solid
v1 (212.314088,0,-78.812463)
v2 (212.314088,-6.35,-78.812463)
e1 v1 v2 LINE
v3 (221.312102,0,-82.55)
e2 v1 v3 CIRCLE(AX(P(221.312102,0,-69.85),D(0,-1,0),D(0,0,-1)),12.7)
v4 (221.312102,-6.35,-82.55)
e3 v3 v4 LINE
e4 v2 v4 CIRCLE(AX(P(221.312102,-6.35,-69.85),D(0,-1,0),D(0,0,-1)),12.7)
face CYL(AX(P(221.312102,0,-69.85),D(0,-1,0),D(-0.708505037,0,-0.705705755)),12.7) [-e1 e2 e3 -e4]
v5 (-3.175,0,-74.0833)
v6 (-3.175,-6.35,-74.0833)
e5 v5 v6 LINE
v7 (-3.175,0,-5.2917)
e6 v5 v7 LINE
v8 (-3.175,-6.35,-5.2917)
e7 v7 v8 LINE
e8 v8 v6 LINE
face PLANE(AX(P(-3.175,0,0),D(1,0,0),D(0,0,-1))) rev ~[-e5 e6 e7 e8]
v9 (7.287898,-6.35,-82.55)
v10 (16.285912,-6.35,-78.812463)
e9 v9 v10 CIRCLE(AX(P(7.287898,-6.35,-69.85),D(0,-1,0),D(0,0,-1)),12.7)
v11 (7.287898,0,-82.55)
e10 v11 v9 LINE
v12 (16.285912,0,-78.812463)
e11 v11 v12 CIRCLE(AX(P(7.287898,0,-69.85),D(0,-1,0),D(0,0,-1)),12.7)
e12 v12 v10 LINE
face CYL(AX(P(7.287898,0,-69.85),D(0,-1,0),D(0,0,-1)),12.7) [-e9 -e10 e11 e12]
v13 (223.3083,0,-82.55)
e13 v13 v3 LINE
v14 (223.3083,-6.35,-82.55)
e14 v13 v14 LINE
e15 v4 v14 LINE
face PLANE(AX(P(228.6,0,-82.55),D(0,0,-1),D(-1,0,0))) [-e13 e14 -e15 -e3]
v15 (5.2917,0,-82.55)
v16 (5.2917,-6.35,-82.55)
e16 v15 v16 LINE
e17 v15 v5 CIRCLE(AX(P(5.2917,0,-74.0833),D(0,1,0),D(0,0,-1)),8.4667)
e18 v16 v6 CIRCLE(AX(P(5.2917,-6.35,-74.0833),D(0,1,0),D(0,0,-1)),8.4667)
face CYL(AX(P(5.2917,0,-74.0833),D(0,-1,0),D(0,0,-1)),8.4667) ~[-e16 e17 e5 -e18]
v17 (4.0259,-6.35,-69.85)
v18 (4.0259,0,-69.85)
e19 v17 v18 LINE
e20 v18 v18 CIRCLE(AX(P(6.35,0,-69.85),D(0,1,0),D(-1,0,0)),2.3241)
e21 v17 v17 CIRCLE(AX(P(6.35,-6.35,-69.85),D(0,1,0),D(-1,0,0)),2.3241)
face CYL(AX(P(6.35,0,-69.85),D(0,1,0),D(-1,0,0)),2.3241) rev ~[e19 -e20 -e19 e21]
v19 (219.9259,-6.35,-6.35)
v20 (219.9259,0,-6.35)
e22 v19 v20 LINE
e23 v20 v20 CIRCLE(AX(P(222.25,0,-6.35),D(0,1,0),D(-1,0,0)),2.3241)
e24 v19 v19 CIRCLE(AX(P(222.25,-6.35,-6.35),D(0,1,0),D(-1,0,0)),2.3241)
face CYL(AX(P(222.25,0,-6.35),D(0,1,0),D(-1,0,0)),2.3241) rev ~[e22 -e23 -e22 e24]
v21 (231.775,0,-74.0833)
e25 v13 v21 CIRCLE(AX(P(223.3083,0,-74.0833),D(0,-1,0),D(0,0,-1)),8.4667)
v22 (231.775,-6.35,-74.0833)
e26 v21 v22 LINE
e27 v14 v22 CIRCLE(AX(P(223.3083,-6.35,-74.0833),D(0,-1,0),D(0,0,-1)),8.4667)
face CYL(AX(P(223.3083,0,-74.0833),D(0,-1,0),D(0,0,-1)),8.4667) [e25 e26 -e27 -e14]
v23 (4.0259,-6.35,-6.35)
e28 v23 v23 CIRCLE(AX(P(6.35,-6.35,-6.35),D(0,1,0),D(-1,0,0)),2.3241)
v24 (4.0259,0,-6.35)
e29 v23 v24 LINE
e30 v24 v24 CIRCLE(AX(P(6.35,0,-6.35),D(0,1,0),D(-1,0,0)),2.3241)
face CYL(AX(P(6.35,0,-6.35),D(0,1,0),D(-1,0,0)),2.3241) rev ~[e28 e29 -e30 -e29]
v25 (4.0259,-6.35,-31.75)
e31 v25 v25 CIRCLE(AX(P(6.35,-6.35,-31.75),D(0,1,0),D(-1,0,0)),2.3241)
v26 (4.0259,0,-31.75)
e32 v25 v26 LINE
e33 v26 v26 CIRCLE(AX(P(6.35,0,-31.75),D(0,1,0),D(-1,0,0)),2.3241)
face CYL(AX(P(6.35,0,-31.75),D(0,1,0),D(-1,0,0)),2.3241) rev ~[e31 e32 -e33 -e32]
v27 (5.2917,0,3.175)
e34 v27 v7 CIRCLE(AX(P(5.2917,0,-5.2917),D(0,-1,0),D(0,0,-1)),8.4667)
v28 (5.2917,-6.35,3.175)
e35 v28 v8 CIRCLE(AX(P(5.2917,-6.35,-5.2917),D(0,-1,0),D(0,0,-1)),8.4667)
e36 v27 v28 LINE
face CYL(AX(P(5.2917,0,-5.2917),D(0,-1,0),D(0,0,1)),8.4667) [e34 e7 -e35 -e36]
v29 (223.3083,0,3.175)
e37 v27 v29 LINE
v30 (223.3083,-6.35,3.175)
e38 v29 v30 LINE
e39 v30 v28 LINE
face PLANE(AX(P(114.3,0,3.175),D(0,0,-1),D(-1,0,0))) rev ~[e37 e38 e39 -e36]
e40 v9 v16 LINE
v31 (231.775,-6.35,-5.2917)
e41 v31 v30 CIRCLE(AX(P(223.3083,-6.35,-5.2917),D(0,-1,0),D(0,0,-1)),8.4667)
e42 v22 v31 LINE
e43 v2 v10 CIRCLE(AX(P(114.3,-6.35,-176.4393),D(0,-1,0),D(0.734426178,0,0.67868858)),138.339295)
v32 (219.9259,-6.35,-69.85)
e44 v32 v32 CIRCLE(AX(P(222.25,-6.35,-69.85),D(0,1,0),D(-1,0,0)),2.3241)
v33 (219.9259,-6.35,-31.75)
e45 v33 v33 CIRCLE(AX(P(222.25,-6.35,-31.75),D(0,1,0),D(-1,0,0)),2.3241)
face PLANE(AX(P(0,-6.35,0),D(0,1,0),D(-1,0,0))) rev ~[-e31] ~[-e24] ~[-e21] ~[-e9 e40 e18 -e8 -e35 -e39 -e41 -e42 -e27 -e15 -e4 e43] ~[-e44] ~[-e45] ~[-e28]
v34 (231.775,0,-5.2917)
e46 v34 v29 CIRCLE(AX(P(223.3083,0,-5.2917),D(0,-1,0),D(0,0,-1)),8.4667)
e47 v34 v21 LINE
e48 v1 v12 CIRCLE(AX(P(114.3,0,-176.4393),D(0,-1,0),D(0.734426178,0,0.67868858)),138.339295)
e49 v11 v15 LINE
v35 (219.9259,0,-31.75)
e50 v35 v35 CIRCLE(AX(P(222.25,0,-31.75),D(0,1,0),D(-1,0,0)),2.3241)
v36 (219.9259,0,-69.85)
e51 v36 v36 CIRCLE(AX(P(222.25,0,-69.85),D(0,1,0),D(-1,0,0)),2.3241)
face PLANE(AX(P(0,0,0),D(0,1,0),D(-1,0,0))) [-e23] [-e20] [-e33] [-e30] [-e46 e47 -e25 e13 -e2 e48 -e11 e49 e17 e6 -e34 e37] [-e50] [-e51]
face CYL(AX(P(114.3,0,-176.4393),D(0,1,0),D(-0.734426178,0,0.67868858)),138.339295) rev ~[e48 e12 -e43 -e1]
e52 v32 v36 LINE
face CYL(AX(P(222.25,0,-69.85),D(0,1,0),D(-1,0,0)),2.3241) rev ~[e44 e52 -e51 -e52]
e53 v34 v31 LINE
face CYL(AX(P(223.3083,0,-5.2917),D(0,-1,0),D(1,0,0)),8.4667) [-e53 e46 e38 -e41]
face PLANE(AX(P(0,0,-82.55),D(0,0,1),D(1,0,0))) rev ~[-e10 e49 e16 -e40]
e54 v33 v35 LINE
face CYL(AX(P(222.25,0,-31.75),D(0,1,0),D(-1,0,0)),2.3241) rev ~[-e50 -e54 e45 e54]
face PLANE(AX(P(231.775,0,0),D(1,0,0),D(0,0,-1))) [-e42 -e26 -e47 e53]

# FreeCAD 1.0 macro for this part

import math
import FreeCAD as App
import Part
import Sketcher
Q = App.Units.Quantity


def edges_at(feature, points):
    """Names of the edges that pass closest to the given points."""
    edges = feature.Shape.Edges
    near = lambda p: min(range(len(edges)), key=lambda i: edges[i].distToShape(Part.Vertex(*p))[0])
    return sorted({f"Edge{near(p) + 1}" for p in points})

doc = App.newDocument("Part")
params = doc.addObject("Spreadsheet::Sheet", "Params")
for row, (alias, value) in enumerate([
    ("sketch1_width", "9 in"),
    ("sketch1_diameter", "0.183 in"),
    ("sketch1_width2", "0.5 in"),
    ("sketch1_height", "3.25 in"),
    ("pad1_length", "0.125 in"),
    ("fillet_radius", "8.4667 mm"),
    ("sketch2_diameter", "0.183 in"),
    ("pad2_length", "0.25 in"),
    ("fillet2_radius", "8.4667 mm"),
    ("fillet3_radius", "0.5 in"),
], start=1):
    params.set(f"A{row}", alias)
    params.set(f"B{row}", "=" + value)
    params.setAlias(f"B{row}", alias)

body = doc.addObject("PartDesign::Body", "Body")

sketch1 = body.newObject("Sketcher::SketchObject", "Sketch")
sketch1.AttachmentSupport = (doc.getObject("XZ_Plane"), [""])
sketch1.MapMode = "FlatFace"
sketch1.addGeometry(Part.LineSegment(App.Vector(0, -82.55, 0), App.Vector(0, 0, 0)), False)
sketch1.addGeometry(Part.LineSegment(App.Vector(0, 0, 0), App.Vector(228.6, 0, 0)), False)
sketch1.addGeometry(Part.LineSegment(App.Vector(228.6, 0, 0), App.Vector(228.6, -82.55, 0)), False)
sketch1.addGeometry(Part.LineSegment(App.Vector(228.6, -82.55, 0), App.Vector(215.9, -82.55, 0)), False)
sketch1.addGeometry(Part.ArcOfCircle(Part.Circle(App.Vector(114.3, -176.4393, 0), App.Vector(0, 0, 1), 138.339295), math.radians(42.741249), math.radians(137.258751)), False)
sketch1.addGeometry(Part.LineSegment(App.Vector(12.7, -82.55, 0), App.Vector(0, -82.55, 0)), False)
sketch1.addGeometry(Part.Circle(App.Vector(6.35, -69.85, 0), App.Vector(0, 0, 1), 2.3241), False)
sketch1.addGeometry(Part.Circle(App.Vector(6.35, -31.75, 0), App.Vector(0, 0, 1), 2.3241), False)
sketch1.addGeometry(Part.Circle(App.Vector(6.35, -6.35, 0), App.Vector(0, 0, 1), 2.3241), False)
sketch1.addGeometry(Part.Circle(App.Vector(222.25, -6.35, 0), App.Vector(0, 0, 1), 2.3241), False)
sketch1.addGeometry(Part.Circle(App.Vector(222.25, -69.85, 0), App.Vector(0, 0, 1), 2.3241), False)
sketch1.addGeometry(Part.Circle(App.Vector(222.25, -31.75, 0), App.Vector(0, 0, 1), 2.3241), False)
sketch1.addConstraint(Sketcher.Constraint("Coincident", 0, 2, 1, 1))
sketch1.addConstraint(Sketcher.Constraint("Coincident", 1, 2, 2, 1))
sketch1.addConstraint(Sketcher.Constraint("Coincident", 2, 2, 3, 1))
sketch1.addConstraint(Sketcher.Constraint("Coincident", 3, 2, 4, 1))
sketch1.addConstraint(Sketcher.Constraint("Coincident", 4, 2, 5, 1))
sketch1.addConstraint(Sketcher.Constraint("Coincident", 5, 2, 0, 1))
sketch1.addConstraint(Sketcher.Constraint("Vertical", 0))
sketch1.addConstraint(Sketcher.Constraint("Horizontal", 1))
sketch1.addConstraint(Sketcher.Constraint("Vertical", 2))
sketch1.addConstraint(Sketcher.Constraint("Horizontal", 3))
sketch1.addConstraint(Sketcher.Constraint("Horizontal", 5))
sketch1.addConstraint(Sketcher.Constraint("Coincident", 0, 2, -1, 1))
sketch1.addConstraint(Sketcher.Constraint("Equal", 6, 7))
sketch1.addConstraint(Sketcher.Constraint("Equal", 7, 8))
sketch1.addConstraint(Sketcher.Constraint("Equal", 8, 9))
sketch1.addConstraint(Sketcher.Constraint("Equal", 9, 10))
sketch1.addConstraint(Sketcher.Constraint("Equal", 10, 11))
sketch1.addConstraint(Sketcher.Constraint("Horizontal", 8, 3, 9, 3))
sketch1.addConstraint(Sketcher.Constraint("Horizontal", 6, 3, 10, 3))
sketch1.addConstraint(Sketcher.Constraint("Horizontal", 7, 3, 11, 3))
sketch1.addConstraint(Sketcher.Constraint("Horizontal", 3, 2, 4, 2))
sketch1.addConstraint(Sketcher.Constraint("Vertical", 6, 3, 7, 3))
sketch1.addConstraint(Sketcher.Constraint("Vertical", 7, 3, 8, 3))
sketch1.addConstraint(Sketcher.Constraint("Vertical", 9, 3, 10, 3))
sketch1.addConstraint(Sketcher.Constraint("Vertical", 10, 3, 11, 3))
sketch1.addConstraint(Sketcher.Constraint("Equal", 3, 5))
sketch1.addConstraint(Sketcher.Constraint("DistanceX", 1, 1, 1, 2, Q("9 in")))
sketch1.addConstraint(Sketcher.Constraint("Diameter", 6, Q("0.183 in")))
sketch1.addConstraint(Sketcher.Constraint("DistanceX", 3, 2, 3, 1, Q("0.5 in")))
sketch1.addConstraint(Sketcher.Constraint("DistanceY", 0, 1, 0, 2, Q("3.25 in")))
sketch1.addConstraint(Sketcher.Constraint("DistanceY", 6, 3, 7, 3, Q("1.5 in")))
sketch1.addConstraint(Sketcher.Constraint("DistanceY", 2, 2, 10, 3, Q("0.5 in")))
sketch1.addConstraint(Sketcher.Constraint("DistanceX", -1, 1, 6, 3, Q("0.25 in")))
sketch1.addConstraint(Sketcher.Constraint("DistanceY", 8, 3, -1, 1, Q("0.25 in")))
sketch1.addConstraint(Sketcher.Constraint("DistanceX", 9, 3, 1, 2, Q("0.25 in")))
sketch1.addConstraint(Sketcher.Constraint("Radius", 4, 138.3393))
sketch1.setExpression("Constraints[26]", "Params.sketch1_width")
sketch1.setExpression("Constraints[27]", "Params.sketch1_diameter")
sketch1.setExpression("Constraints[28]", "Params.sketch1_width2")
sketch1.setExpression("Constraints[29]", "Params.sketch1_height")
pad1 = body.newObject("PartDesign::Pad", "Pad")
pad1.Profile = sketch1
pad1.setExpression("Length", "Params.pad1_length")
doc.recompute()

fillet = body.newObject("PartDesign::Fillet", "Fillet")
fillet.Base = (pad1, edges_at(pad1, [
    (228.6, -1.587, -82.55),
    (215.9, -1.587, -82.55),
    (12.7, -1.587, -82.55),
    (0, -1.587, -82.55),
]))
fillet.setExpression("Radius", "Params.fillet_radius")

sketch2 = body.newObject("Sketcher::SketchObject", "Sketch001")
sketch2.AttachmentSupport = (doc.getObject("XZ_Plane"), [""])
sketch2.MapMode = "FlatFace"
sketch2.addGeometry(Part.LineSegment(App.Vector(12.7, -82.55, 0), App.Vector(-3.175, -82.55, 0)), False)
sketch2.addGeometry(Part.LineSegment(App.Vector(-3.175, -82.55, 0), App.Vector(-3.175, 3.175, 0)), False)
sketch2.addGeometry(Part.LineSegment(App.Vector(-3.175, 3.175, 0), App.Vector(231.775, 3.175, 0)), False)
sketch2.addGeometry(Part.LineSegment(App.Vector(231.775, 3.175, 0), App.Vector(231.775, -82.55, 0)), False)
sketch2.addGeometry(Part.LineSegment(App.Vector(231.775, -82.55, 0), App.Vector(215.9, -82.55, 0)), False)
sketch2.addGeometry(Part.ArcOfCircle(Part.Circle(App.Vector(114.3, -176.4393, 0), App.Vector(0, 0, 1), 138.339295), math.radians(42.741249), math.radians(137.258751)), False)
sketch2.addGeometry(Part.Circle(App.Vector(6.35, -69.85, 0), App.Vector(0, 0, 1), 2.3241), False)
sketch2.addGeometry(Part.Circle(App.Vector(6.35, -31.75, 0), App.Vector(0, 0, 1), 2.3241), False)
sketch2.addGeometry(Part.Circle(App.Vector(6.35, -6.35, 0), App.Vector(0, 0, 1), 2.3241), False)
sketch2.addGeometry(Part.Circle(App.Vector(222.25, -6.35, 0), App.Vector(0, 0, 1), 2.3241), False)
sketch2.addGeometry(Part.Circle(App.Vector(222.25, -69.85, 0), App.Vector(0, 0, 1), 2.3241), False)
sketch2.addGeometry(Part.Circle(App.Vector(222.25, -31.75, 0), App.Vector(0, 0, 1), 2.3241), False)
sketch2.addConstraint(Sketcher.Constraint("Coincident", 0, 2, 1, 1))
sketch2.addConstraint(Sketcher.Constraint("Coincident", 1, 2, 2, 1))
sketch2.addConstraint(Sketcher.Constraint("Coincident", 2, 2, 3, 1))
sketch2.addConstraint(Sketcher.Constraint("Coincident", 3, 2, 4, 1))
sketch2.addConstraint(Sketcher.Constraint("Coincident", 4, 2, 5, 1))
sketch2.addConstraint(Sketcher.Constraint("Coincident", 5, 2, 0, 1))
sketch2.addConstraint(Sketcher.Constraint("Horizontal", 0))
sketch2.addConstraint(Sketcher.Constraint("Vertical", 1))
sketch2.addConstraint(Sketcher.Constraint("Horizontal", 2))
sketch2.addConstraint(Sketcher.Constraint("Vertical", 3))
sketch2.addConstraint(Sketcher.Constraint("Horizontal", 4))
sketch2.addConstraint(Sketcher.Constraint("Equal", 6, 7))
sketch2.addConstraint(Sketcher.Constraint("Equal", 7, 8))
sketch2.addConstraint(Sketcher.Constraint("Equal", 8, 9))
sketch2.addConstraint(Sketcher.Constraint("Equal", 9, 10))
sketch2.addConstraint(Sketcher.Constraint("Equal", 10, 11))
sketch2.addConstraint(Sketcher.Constraint("Horizontal", 8, 3, 9, 3))
sketch2.addConstraint(Sketcher.Constraint("Horizontal", 6, 3, 10, 3))
sketch2.addConstraint(Sketcher.Constraint("Horizontal", 7, 3, 11, 3))
sketch2.addConstraint(Sketcher.Constraint("Horizontal", 0, 2, 3, 2))
sketch2.addConstraint(Sketcher.Constraint("Vertical", 6, 3, 7, 3))
sketch2.addConstraint(Sketcher.Constraint("Vertical", 7, 3, 8, 3))
sketch2.addConstraint(Sketcher.Constraint("Vertical", 9, 3, 10, 3))
sketch2.addConstraint(Sketcher.Constraint("Vertical", 10, 3, 11, 3))
sketch2.addConstraint(Sketcher.Constraint("Equal", 0, 4))
sketch2.addConstraint(Sketcher.Constraint("Diameter", 6, Q("0.183 in")))
sketch2.addConstraint(Sketcher.Constraint("DistanceX", -1, 1, 5, 3, Q("4.5 in")))
sketch2.addConstraint(Sketcher.Constraint("DistanceX", -1, 1, 5, 2, Q("0.5 in")))
sketch2.addConstraint(Sketcher.Constraint("DistanceY", 6, 3, 7, 3, Q("1.5 in")))
sketch2.addConstraint(Sketcher.Constraint("DistanceY", 0, 2, 6, 3, Q("0.5 in")))
sketch2.addConstraint(Sketcher.Constraint("DistanceX", -1, 1, 6, 3, Q("0.25 in")))
sketch2.addConstraint(Sketcher.Constraint("DistanceY", 6, 3, -1, 1, Q("2.75 in")))
sketch2.addConstraint(Sketcher.Constraint("DistanceY", 8, 3, -1, 1, Q("0.25 in")))
sketch2.addConstraint(Sketcher.Constraint("DistanceX", 4, 2, 10, 3, Q("0.25 in")))
sketch2.addConstraint(Sketcher.Constraint("DistanceX", 0, 2, -1, 1, Q("0.125 in")))
sketch2.addConstraint(Sketcher.Constraint("DistanceY", -1, 1, 1, 2, Q("0.125 in")))
sketch2.addConstraint(Sketcher.Constraint("Radius", 5, 138.3393))
sketch2.setExpression("Constraints[25]", "Params.sketch2_diameter")
pad2 = body.newObject("PartDesign::Pad", "Pad001")
pad2.Profile = sketch2
pad2.setExpression("Length", "Params.pad2_length")
doc.recompute()

fillet2 = body.newObject("PartDesign::Fillet", "Fillet001")
fillet2.Base = (pad2, edges_at(pad2, [
    (231.775, -3.175, -82.55),
    (231.775, -3.175, 3.175),
    (-3.175, -3.175, 3.175),
    (-3.175, -3.175, -82.55),
]))
fillet2.setExpression("Radius", "Params.fillet2_radius")
doc.recompute()

fillet3 = body.newObject("PartDesign::Fillet", "Fillet002")
fillet3.Base = (fillet2, edges_at(fillet2, [(215.9, -3.175, -82.55), (12.7, -3.175, -82.55)]))
fillet3.setExpression("Radius", "Params.fillet3_radius")

doc.recompute()
